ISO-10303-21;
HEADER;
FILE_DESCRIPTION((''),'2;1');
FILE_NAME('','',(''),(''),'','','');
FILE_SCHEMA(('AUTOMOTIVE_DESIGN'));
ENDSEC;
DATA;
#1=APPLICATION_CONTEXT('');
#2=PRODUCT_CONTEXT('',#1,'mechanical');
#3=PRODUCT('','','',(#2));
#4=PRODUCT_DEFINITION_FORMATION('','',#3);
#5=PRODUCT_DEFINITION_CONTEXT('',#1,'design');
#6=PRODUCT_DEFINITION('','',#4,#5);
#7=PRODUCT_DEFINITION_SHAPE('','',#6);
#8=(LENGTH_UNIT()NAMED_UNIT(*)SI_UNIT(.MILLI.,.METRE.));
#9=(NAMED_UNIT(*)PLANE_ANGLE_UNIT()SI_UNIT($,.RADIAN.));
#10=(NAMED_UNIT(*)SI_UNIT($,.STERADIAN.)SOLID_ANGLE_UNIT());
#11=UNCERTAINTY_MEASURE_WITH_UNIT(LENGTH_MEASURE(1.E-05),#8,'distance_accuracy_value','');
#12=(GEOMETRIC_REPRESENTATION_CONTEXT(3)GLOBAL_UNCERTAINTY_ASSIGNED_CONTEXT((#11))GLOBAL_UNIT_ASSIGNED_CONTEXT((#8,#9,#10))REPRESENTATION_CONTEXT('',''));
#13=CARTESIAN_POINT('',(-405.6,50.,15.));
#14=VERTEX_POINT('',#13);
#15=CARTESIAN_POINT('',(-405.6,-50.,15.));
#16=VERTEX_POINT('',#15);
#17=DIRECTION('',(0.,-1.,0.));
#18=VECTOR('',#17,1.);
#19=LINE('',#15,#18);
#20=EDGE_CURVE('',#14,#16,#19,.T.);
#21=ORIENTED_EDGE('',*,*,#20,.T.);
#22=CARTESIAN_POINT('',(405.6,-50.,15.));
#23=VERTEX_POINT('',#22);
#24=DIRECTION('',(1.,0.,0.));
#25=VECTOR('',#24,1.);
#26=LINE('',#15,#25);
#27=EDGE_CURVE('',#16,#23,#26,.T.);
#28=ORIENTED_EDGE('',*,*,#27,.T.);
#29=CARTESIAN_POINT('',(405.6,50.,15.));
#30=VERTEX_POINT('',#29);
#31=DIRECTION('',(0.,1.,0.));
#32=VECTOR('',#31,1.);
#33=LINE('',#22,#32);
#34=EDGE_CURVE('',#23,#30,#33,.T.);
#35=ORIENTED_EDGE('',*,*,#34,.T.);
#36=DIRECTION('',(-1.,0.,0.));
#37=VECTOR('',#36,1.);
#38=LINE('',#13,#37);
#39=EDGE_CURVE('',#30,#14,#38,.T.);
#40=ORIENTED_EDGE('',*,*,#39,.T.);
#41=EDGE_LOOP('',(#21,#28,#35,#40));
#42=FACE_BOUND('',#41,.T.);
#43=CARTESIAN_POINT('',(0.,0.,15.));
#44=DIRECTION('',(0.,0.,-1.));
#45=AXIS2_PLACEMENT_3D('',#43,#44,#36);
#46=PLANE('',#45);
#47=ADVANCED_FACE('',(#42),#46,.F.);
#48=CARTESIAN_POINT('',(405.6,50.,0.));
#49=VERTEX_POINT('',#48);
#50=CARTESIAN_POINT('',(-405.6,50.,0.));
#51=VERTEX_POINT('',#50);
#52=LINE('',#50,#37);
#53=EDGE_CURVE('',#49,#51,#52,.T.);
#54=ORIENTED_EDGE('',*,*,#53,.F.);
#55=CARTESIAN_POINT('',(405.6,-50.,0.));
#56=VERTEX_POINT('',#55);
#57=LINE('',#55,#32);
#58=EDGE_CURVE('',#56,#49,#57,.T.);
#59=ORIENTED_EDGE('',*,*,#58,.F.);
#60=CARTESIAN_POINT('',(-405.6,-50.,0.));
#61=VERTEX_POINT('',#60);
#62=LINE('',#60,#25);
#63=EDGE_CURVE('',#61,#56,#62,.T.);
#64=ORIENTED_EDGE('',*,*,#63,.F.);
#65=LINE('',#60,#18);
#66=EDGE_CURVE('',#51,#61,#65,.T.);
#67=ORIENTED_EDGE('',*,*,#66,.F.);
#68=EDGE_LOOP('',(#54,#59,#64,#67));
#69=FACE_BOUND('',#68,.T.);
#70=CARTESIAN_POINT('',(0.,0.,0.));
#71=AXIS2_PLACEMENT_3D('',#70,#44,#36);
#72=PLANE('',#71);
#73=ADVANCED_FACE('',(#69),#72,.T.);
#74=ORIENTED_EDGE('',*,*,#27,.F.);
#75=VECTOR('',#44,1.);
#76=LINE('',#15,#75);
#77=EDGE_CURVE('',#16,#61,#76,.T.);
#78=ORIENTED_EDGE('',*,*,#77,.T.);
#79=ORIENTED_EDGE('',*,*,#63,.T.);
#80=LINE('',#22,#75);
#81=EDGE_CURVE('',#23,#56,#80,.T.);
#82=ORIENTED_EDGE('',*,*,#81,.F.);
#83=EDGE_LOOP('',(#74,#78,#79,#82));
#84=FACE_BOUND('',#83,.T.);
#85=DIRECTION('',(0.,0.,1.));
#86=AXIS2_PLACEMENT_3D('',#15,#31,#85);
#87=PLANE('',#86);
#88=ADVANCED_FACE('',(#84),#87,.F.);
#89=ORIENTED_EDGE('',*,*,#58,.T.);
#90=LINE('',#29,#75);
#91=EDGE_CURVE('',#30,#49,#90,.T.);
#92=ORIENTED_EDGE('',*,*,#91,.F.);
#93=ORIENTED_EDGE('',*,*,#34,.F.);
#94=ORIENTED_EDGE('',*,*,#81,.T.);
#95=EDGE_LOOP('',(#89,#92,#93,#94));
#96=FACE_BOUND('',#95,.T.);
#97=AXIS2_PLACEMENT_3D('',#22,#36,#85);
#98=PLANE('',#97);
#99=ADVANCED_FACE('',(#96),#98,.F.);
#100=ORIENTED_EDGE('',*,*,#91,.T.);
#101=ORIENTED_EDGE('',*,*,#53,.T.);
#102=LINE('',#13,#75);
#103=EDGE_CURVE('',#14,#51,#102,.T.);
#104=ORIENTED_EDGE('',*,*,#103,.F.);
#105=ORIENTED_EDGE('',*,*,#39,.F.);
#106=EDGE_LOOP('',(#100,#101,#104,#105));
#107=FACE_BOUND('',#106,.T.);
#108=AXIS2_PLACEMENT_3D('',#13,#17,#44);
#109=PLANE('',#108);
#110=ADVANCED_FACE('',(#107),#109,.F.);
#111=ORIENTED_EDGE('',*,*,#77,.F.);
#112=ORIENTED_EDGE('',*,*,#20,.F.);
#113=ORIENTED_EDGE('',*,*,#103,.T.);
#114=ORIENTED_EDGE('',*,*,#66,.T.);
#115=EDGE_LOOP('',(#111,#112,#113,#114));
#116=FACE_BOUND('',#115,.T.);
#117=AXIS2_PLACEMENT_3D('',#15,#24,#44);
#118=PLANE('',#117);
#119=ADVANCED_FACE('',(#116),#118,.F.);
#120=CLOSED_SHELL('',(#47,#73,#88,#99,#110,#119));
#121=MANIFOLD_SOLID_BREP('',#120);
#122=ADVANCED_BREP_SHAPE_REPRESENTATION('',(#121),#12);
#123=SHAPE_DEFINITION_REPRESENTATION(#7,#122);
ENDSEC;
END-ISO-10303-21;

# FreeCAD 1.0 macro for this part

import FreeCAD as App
import Part
import Sketcher
from FreeCAD import Vector

doc = App.newDocument("Part")
params = doc.addObject("Spreadsheet::Sheet", "Params")
for row, (alias, value) in enumerate([
    ("sketch1_height", "100 mm"),
    ("sketch1_width", "811.2 mm"),
    ("pad1_length", "15 mm"),
], start=1):
    params.set(f"A{row}", alias)
    params.set(f"B{row}", "=" + value)
    params.setAlias(f"B{row}", alias)

body = doc.addObject("PartDesign::Body", "Body")

# Sketch on XY plane
sketch1 = doc.addObject("Sketcher::SketchObject", "Sketch")
body.addObject(sketch1)
sketch1.AttachmentSupport = (doc.XY_Plane, [""])
sketch1.MapMode = "FlatFace"
sketch1.addGeometry(Part.LineSegment(Vector(-406, 50, 0), Vector(-406, -50, 0)), False)
sketch1.addGeometry(Part.LineSegment(Vector(-406, -50, 0), Vector(406, -50, 0)), False)
sketch1.addGeometry(Part.LineSegment(Vector(406, -50, 0), Vector(406, 50, 0)), False)
sketch1.addGeometry(Part.LineSegment(Vector(406, 50, 0), Vector(-406, 50, 0)), False)
sketch1.addConstraint(Sketcher.Constraint("Coincident", 0, 2, 1, 1))
sketch1.addConstraint(Sketcher.Constraint("Coincident", 1, 2, 2, 1))
sketch1.addConstraint(Sketcher.Constraint("Coincident", 2, 2, 3, 1))
sketch1.addConstraint(Sketcher.Constraint("Coincident", 3, 2, 0, 1))
sketch1.addConstraint(Sketcher.Constraint("Vertical", 0))
sketch1.addConstraint(Sketcher.Constraint("Horizontal", 1))
sketch1.addConstraint(Sketcher.Constraint("Vertical", 2))
sketch1.addConstraint(Sketcher.Constraint("Horizontal", 3))
sketch1.addConstraint(Sketcher.Constraint("Symmetric", 0, 2, 2, 2, -1, 1))
sketch1.addConstraint(Sketcher.Constraint("DistanceY", 0, 2, 0, 1, 100.0))
sketch1.addConstraint(Sketcher.Constraint("DistanceX", 1, 1, 1, 2, 811.2))
sketch1.setExpression("Constraints[9]", "Params.sketch1_height")
sketch1.setExpression("Constraints[10]", "Params.sketch1_width")
pad1 = doc.addObject("PartDesign::Pad", "Pad")
body.addObject(pad1)
pad1.Profile = sketch1
pad1.setExpression("Length", "Params.pad1_length")

doc.recompute()
